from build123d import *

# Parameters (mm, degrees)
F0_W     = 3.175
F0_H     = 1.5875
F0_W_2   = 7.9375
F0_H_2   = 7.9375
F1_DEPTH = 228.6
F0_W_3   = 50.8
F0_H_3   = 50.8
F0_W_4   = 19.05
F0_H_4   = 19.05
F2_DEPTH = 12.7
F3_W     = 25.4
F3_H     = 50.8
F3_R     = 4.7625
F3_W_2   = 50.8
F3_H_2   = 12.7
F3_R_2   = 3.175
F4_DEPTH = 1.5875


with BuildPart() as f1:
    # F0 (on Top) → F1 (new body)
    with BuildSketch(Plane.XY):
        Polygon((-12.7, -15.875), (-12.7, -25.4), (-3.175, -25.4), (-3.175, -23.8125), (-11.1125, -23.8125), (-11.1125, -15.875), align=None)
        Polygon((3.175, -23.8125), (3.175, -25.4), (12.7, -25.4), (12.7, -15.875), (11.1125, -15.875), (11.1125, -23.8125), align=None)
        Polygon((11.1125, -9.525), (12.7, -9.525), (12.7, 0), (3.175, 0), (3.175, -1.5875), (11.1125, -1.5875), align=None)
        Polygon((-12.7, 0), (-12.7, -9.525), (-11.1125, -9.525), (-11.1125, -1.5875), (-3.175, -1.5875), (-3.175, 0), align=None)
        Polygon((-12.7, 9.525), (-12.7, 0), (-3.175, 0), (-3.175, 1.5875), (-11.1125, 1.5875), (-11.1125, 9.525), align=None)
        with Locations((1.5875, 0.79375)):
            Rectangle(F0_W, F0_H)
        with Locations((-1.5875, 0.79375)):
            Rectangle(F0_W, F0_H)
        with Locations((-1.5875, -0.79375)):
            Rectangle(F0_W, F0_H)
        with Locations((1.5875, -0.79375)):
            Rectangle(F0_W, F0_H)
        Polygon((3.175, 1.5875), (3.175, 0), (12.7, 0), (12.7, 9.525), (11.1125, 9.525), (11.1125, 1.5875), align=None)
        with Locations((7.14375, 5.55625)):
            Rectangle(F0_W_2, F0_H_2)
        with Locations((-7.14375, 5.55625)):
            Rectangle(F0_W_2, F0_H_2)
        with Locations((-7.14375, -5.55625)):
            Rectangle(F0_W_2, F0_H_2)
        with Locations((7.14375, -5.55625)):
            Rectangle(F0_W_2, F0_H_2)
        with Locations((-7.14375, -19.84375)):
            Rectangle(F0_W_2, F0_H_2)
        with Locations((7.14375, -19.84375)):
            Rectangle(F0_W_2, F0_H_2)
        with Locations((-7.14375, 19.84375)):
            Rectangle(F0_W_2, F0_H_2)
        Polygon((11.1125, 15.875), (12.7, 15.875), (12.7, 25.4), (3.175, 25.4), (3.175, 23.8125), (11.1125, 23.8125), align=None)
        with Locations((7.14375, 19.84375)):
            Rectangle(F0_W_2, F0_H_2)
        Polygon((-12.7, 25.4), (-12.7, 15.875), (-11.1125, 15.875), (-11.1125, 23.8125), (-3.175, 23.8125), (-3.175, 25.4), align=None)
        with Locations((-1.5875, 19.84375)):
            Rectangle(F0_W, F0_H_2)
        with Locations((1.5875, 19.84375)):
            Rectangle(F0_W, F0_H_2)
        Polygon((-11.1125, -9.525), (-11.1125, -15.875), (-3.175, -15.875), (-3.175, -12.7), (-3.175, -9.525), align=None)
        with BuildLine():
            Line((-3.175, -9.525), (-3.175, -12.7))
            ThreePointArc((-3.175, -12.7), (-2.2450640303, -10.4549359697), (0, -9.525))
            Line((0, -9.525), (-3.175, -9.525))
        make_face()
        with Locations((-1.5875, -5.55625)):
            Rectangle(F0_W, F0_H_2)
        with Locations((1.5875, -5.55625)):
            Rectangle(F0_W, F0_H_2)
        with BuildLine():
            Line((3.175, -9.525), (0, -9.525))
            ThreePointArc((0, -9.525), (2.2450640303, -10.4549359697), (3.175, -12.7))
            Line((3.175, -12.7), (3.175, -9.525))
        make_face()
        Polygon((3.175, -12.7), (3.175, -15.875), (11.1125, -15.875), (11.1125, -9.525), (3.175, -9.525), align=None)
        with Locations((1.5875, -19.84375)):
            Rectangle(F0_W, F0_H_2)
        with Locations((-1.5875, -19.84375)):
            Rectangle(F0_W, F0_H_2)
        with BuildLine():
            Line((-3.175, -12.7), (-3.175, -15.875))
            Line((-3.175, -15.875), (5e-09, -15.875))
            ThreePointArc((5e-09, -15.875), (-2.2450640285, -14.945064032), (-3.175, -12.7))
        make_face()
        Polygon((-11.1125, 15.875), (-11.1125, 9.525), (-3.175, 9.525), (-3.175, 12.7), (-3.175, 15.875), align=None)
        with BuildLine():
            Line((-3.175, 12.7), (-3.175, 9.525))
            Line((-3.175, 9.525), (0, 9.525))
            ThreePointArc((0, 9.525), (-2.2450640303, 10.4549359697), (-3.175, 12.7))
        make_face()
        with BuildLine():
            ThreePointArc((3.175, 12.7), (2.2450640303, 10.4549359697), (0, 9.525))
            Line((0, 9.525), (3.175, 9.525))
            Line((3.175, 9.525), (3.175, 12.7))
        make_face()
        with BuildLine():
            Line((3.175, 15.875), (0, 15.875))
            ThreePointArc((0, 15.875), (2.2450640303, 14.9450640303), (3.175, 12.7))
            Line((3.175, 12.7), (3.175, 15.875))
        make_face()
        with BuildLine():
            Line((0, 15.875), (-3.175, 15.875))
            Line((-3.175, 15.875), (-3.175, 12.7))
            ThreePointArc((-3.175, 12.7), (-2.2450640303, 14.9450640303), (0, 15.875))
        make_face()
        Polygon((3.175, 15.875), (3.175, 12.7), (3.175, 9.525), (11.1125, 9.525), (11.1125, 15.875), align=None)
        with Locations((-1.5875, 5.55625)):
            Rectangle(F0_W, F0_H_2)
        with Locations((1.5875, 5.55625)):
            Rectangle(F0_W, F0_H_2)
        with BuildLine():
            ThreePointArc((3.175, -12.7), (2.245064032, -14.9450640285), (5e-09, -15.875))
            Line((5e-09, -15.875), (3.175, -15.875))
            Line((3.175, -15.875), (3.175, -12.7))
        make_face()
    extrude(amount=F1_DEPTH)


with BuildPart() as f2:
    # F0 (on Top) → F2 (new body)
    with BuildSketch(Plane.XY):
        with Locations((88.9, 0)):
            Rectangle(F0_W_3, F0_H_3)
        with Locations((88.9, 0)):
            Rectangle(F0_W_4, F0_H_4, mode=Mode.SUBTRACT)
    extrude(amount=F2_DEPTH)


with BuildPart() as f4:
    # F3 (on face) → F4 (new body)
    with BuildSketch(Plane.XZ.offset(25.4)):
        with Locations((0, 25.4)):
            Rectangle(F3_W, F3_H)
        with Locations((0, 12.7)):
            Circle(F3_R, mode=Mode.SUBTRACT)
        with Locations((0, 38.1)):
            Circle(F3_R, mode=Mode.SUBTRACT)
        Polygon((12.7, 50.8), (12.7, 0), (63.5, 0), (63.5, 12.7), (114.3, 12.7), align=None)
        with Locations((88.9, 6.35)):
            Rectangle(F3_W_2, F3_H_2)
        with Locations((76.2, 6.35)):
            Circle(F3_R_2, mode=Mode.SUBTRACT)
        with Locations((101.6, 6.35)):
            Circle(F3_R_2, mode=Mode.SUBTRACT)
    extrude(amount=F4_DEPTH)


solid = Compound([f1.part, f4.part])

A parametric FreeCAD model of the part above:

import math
import FreeCAD as App
import Part
import Sketcher
from FreeCAD import Vector
Q = App.Units.Quantity

doc = App.newDocument("Part")
body = doc.addObject("PartDesign::Body", "Body")

# Sketch on XY plane
sketch1 = doc.addObject("Sketcher::SketchObject", "Sketch")
body.addObject(sketch1)
sketch1.AttachmentSupport = (doc.XY_Plane, [""])
sketch1.MapMode = "FlatFace"
sketch1.addGeometry([
    Part.LineSegment(Vector(-12.7, -15.9, 0), Vector(-12.7, -25.4, 0)),  # 0
    Part.LineSegment(Vector(-12.7, -25.4, 0), Vector(-3.2, -25.4, 0)),  # 1
    Part.LineSegment(Vector(-3.2, -25.4, 0), Vector(-3.2, -23.8, 0)),  # 2
    Part.LineSegment(Vector(-3.2, -23.8, 0), Vector(3.2, -23.8, 0)),  # 3
    Part.LineSegment(Vector(3.2, -23.8, 0), Vector(3.2, -25.4, 0)),  # 4
    Part.LineSegment(Vector(3.2, -25.4, 0), Vector(12.7, -25.4, 0)),  # 5
    Part.LineSegment(Vector(12.7, -25.4, 0), Vector(12.7, -15.9, 0)),  # 6
    Part.LineSegment(Vector(12.7, -15.9, 0), Vector(11.1, -15.9, 0)),  # 7
    Part.LineSegment(Vector(11.1, -15.9, 0), Vector(11.1, -9.5, 0)),  # 8
    Part.LineSegment(Vector(11.1, -9.5, 0), Vector(12.7, -9.5, 0)),  # 9
    Part.LineSegment(Vector(12.7, -9.5, 0), Vector(12.7, 9.5, 0)),  # 10
    Part.LineSegment(Vector(12.7, 9.5, 0), Vector(11.1, 9.5, 0)),  # 11
    Part.LineSegment(Vector(11.1, 9.5, 0), Vector(11.1, 15.9, 0)),  # 12
    Part.LineSegment(Vector(11.1, 15.9, 0), Vector(12.7, 15.9, 0)),  # 13
    Part.LineSegment(Vector(12.7, 15.9, 0), Vector(12.7, 25.4, 0)),  # 14
    Part.LineSegment(Vector(12.7, 25.4, 0), Vector(3.2, 25.4, 0)),  # 15
    Part.LineSegment(Vector(3.2, 25.4, 0), Vector(3.2, 23.8, 0)),  # 16
    Part.LineSegment(Vector(3.2, 23.8, 0), Vector(-3.2, 23.8, 0)),  # 17
    Part.LineSegment(Vector(-3.2, 23.8, 0), Vector(-3.2, 25.4, 0)),  # 18
    Part.LineSegment(Vector(-3.2, 25.4, 0), Vector(-12.7, 25.4, 0)),  # 19
    Part.LineSegment(Vector(-12.7, 25.4, 0), Vector(-12.7, 15.9, 0)),  # 20
    Part.LineSegment(Vector(-12.7, 15.9, 0), Vector(-11.1, 15.9, 0)),  # 21
    Part.LineSegment(Vector(-11.1, 15.9, 0), Vector(-11.1, 9.5, 0)),  # 22
    Part.LineSegment(Vector(-11.1, 9.5, 0), Vector(-12.7, 9.5, 0)),  # 23
    Part.LineSegment(Vector(-12.7, 9.5, 0), Vector(-12.7, -9.5, 0)),  # 24
    Part.LineSegment(Vector(-12.7, -9.5, 0), Vector(-11.1, -9.5, 0)),  # 25
    Part.LineSegment(Vector(-11.1, -9.5, 0), Vector(-11.1, -15.9, 0)),  # 26
    Part.LineSegment(Vector(-11.1, -15.9, 0), Vector(-12.7, -15.9, 0)),  # 27
    Part.ArcOfCircle(Part.Circle(Vector(0, -12.7, 0), Vector(0, 0, 1), 3.2), math.radians(90), math.radians(180)),  # 28
    Part.ArcOfCircle(Part.Circle(Vector(0, -12.7, 0), Vector(0, 0, 1), 3.2), math.radians(0), math.radians(90)),  # 29
    Part.ArcOfCircle(Part.Circle(Vector(0, -12.7, 0), Vector(0, 0, 1), 3.2), math.radians(-90), math.radians(0)),  # 30
    Part.ArcOfCircle(Part.Circle(Vector(0, -12.7, 0), Vector(0, 0, 1), 3.2), math.radians(180), math.radians(270)),  # 31
    Part.ArcOfCircle(Part.Circle(Vector(0, 12.7, 0), Vector(0, 0, 1), 3.2), math.radians(-90), math.radians(0)),  # 32
    Part.ArcOfCircle(Part.Circle(Vector(0, 12.7, 0), Vector(0, 0, 1), 3.2), math.radians(180), math.radians(270)),  # 33
    Part.ArcOfCircle(Part.Circle(Vector(0, 12.7, 0), Vector(0, 0, 1), 3.2), math.radians(90), math.radians(180)),  # 34
    Part.ArcOfCircle(Part.Circle(Vector(0, 12.7, 0), Vector(0, 0, 1), 3.2), math.radians(0), math.radians(90)),  # 35
], False)
sketch1.addConstraint([
    Sketcher.Constraint("Coincident", 0, 2, 1, 1),
    Sketcher.Constraint("Coincident", 1, 2, 2, 1),
    Sketcher.Constraint("Coincident", 2, 2, 3, 1),
    Sketcher.Constraint("Coincident", 3, 2, 4, 1),
    Sketcher.Constraint("Coincident", 4, 2, 5, 1),
    Sketcher.Constraint("Coincident", 5, 2, 6, 1),
    Sketcher.Constraint("Coincident", 6, 2, 7, 1),
    Sketcher.Constraint("Coincident", 7, 2, 8, 1),
    Sketcher.Constraint("Coincident", 8, 2, 9, 1),
    Sketcher.Constraint("Coincident", 9, 2, 10, 1),
    Sketcher.Constraint("Coincident", 10, 2, 11, 1),
    Sketcher.Constraint("Coincident", 11, 2, 12, 1),
    Sketcher.Constraint("Coincident", 12, 2, 13, 1),
    Sketcher.Constraint("Coincident", 13, 2, 14, 1),
    Sketcher.Constraint("Coincident", 14, 2, 15, 1),
    Sketcher.Constraint("Coincident", 15, 2, 16, 1),
    Sketcher.Constraint("Coincident", 16, 2, 17, 1),
    Sketcher.Constraint("Coincident", 17, 2, 18, 1),
    Sketcher.Constraint("Coincident", 18, 2, 19, 1),
    Sketcher.Constraint("Coincident", 19, 2, 20, 1),
    Sketcher.Constraint("Coincident", 20, 2, 21, 1),
    Sketcher.Constraint("Coincident", 21, 2, 22, 1),
    Sketcher.Constraint("Coincident", 22, 2, 23, 1),
    Sketcher.Constraint("Coincident", 23, 2, 24, 1),
    Sketcher.Constraint("Coincident", 24, 2, 25, 1),
    Sketcher.Constraint("Coincident", 25, 2, 26, 1),
    Sketcher.Constraint("Coincident", 26, 2, 27, 1),
    Sketcher.Constraint("Coincident", 27, 2, 0, 1),
    Sketcher.Constraint("Tangent", 28, 1, 29, 2),
    Sketcher.Constraint("Tangent", 29, 1, 30, 2),
    Sketcher.Constraint("Tangent", 30, 1, 31, 2),
    Sketcher.Constraint("Tangent", 31, 1, 28, 2),
    Sketcher.Constraint("Tangent", 32, 1, 33, 2),
    Sketcher.Constraint("Tangent", 33, 1, 34, 2),
    Sketcher.Constraint("Tangent", 34, 1, 35, 2),
    Sketcher.Constraint("Tangent", 35, 1, 32, 2),
    Sketcher.Constraint("Vertical", 0),
    Sketcher.Constraint("Horizontal", 1),
    Sketcher.Constraint("Vertical", 2),
    Sketcher.Constraint("Horizontal", 3),
    Sketcher.Constraint("Vertical", 4),
    Sketcher.Constraint("Horizontal", 5),
    Sketcher.Constraint("Vertical", 6),
    Sketcher.Constraint("Horizontal", 7),
    Sketcher.Constraint("Vertical", 8),
    Sketcher.Constraint("Horizontal", 9),
    Sketcher.Constraint("Vertical", 10),
    Sketcher.Constraint("Horizontal", 11),
    Sketcher.Constraint("Vertical", 12),
    Sketcher.Constraint("Horizontal", 13),
    Sketcher.Constraint("Vertical", 14),
    Sketcher.Constraint("Horizontal", 15),
    Sketcher.Constraint("Vertical", 16),
    Sketcher.Constraint("Horizontal", 17),
    Sketcher.Constraint("Vertical", 18),
    Sketcher.Constraint("Horizontal", 19),
    Sketcher.Constraint("Vertical", 20),
    Sketcher.Constraint("Horizontal", 21),
    Sketcher.Constraint("Vertical", 22),
    Sketcher.Constraint("Horizontal", 23),
    Sketcher.Constraint("Vertical", 24),
    Sketcher.Constraint("Horizontal", 25),
    Sketcher.Constraint("Vertical", 26),
    Sketcher.Constraint("Horizontal", 27),
    Sketcher.Constraint("Equal", 28, 29),
    Sketcher.Constraint("Equal", 31, 32),
    Sketcher.Constraint("Equal", 32, 33),
    Sketcher.Constraint("Symmetric", 28, 3, 32, 3, -1, 1),
    Sketcher.Constraint("Symmetric", 0, 2, 14, 2, -1, 1),
    Sketcher.Constraint("Symmetric", 2, 2, 16, 2, -1, 1),
    Sketcher.Constraint("Symmetric", 4, 2, 18, 2, -1, 1),
    Sketcher.Constraint("Symmetric", 6, 2, 20, 2, -1, 1),
    Sketcher.Constraint("Symmetric", 8, 2, 22, 2, -1, 1),
    Sketcher.Constraint("Symmetric", 10, 2, 24, 2, -1, 1),
    Sketcher.Constraint("Symmetric", 12, 2, 26, 2, -1, 1),
    Sketcher.Constraint("Symmetric", 1, 2, 4, 2, -2),
    Sketcher.Constraint("Symmetric", 13, 2, 20, 2, -2),
    Sketcher.Constraint("Symmetric", 11, 2, 22, 2, -2),
    Sketcher.Constraint("Symmetric", 29, 1, 31, 1, -2),
    Sketcher.Constraint("PointOnObject", 28, 1, -2),
    Sketcher.Constraint("PointOnObject", 30, 1, -2),
    Sketcher.Constraint("PointOnObject", 32, 1, -2),
    Sketcher.Constraint("PointOnObject", 34, 1, -2),
    Sketcher.Constraint("Horizontal", 25, 2, 28, 1),
    Sketcher.Constraint("Horizontal", 31, 3, 29, 1),
    Sketcher.Constraint("Horizontal", 27, 2, 30, 1),
    Sketcher.Constraint("Horizontal", 35, 3, 33, 1),
    Sketcher.Constraint("Horizontal", 33, 1, 35, 1),
    Sketcher.Constraint("Vertical", 6, 2, 9, 2),
    Sketcher.Constraint("Vertical", 16, 2, 29, 1),
    Sketcher.Constraint("Equal", 19, 0),
    Sketcher.Constraint("Equal", 27, 2),
    Sketcher.Constraint("DistanceY", 0, 2, -1, 1, Q("1 in")),
    Sketcher.Constraint("Radius", 28, Q("0.125 in")),
    Sketcher.Constraint("DistanceY", 28, 3, 32, 3, Q("1 in")),
    Sketcher.Constraint("DistanceX", 7, 2, 7, 1, Q("0.0625 in")),
])
pad1 = doc.addObject("PartDesign::Pad", "Pad")
body.addObject(pad1)
pad1.Profile = sketch1
pad1.Length = Q("9 in")
body2 = doc.addObject("PartDesign::Body", "Body001")

# Sketch on XY plane
sketch2 = doc.addObject("Sketcher::SketchObject", "Sketch001")
body2.addObject(sketch2)
sketch2.AttachmentSupport = (doc.getObject("XY_Plane001"), [""])
sketch2.MapMode = "FlatFace"
sketch2.addGeometry([
    Part.LineSegment(Vector(64, 25, 0), Vector(64, -25, 0)),  # 0
    Part.LineSegment(Vector(64, -25, 0), Vector(114, -25, 0)),  # 1
    Part.LineSegment(Vector(114, -25, 0), Vector(114, 25, 0)),  # 2
    Part.LineSegment(Vector(114, 25, 0), Vector(64, 25, 0)),  # 3
    Part.LineSegment(Vector(98, -10, 0), Vector(79, -10, 0)),  # 4
    Part.LineSegment(Vector(79, -10, 0), Vector(79, 10, 0)),  # 5
    Part.LineSegment(Vector(79, 10, 0), Vector(98, 10, 0)),  # 6
    Part.LineSegment(Vector(98, 10, 0), Vector(98, -10, 0)),  # 7
], False)
sketch2.addConstraint([
    Sketcher.Constraint("Coincident", 0, 2, 1, 1),
    Sketcher.Constraint("Coincident", 1, 2, 2, 1),
    Sketcher.Constraint("Coincident", 2, 2, 3, 1),
    Sketcher.Constraint("Coincident", 3, 2, 0, 1),
    Sketcher.Constraint("Coincident", 4, 2, 5, 1),
    Sketcher.Constraint("Coincident", 5, 2, 6, 1),
    Sketcher.Constraint("Coincident", 6, 2, 7, 1),
    Sketcher.Constraint("Coincident", 7, 2, 4, 1),
    Sketcher.Constraint("Vertical", 0),
    Sketcher.Constraint("Horizontal", 1),
    Sketcher.Constraint("Vertical", 2),
    Sketcher.Constraint("Horizontal", 3),
    Sketcher.Constraint("Horizontal", 4),
    Sketcher.Constraint("Vertical", 5),
    Sketcher.Constraint("Horizontal", 6),
    Sketcher.Constraint("Vertical", 7),
    Sketcher.Constraint("Equal", 3, 0),
    Sketcher.Constraint("Equal", 6, 5),
    Sketcher.Constraint("DistanceX", 1, 1, 1, 2, Q("2 in")),
    Sketcher.Constraint("DistanceY", 0, 2, -1, 1, Q("1 in")),
    Sketcher.Constraint("DistanceX", 4, 2, 4, 1, Q("0.75 in")),
    Sketcher.Constraint("DistanceX", -1, 1, 0, 2, Q("2.5 in")),
    Sketcher.Constraint("DistanceX", -1, 1, 4, 2, Q("3.125 in")),
    Sketcher.Constraint("DistanceY", 4, 2, -1, 1, Q("0.375 in")),
])
pad2 = doc.addObject("PartDesign::Pad", "Pad001")
body2.addObject(pad2)
pad2.Profile = sketch2
pad2.Length = Q("0.5 in")
body3 = doc.addObject("PartDesign::Body", "Body002")

# Sketch on XZ plane
sketch3 = doc.addObject("Sketcher::SketchObject", "Sketch002")
body3.addObject(sketch3)
sketch3.AttachmentSupport = (doc.getObject("XZ_Plane002"), [""])
sketch3.MapMode = "FlatFace"
sketch3.AttachmentOffset = App.Placement(Vector(0, 0, 1 * 25.4), App.Rotation())
sketch3.addGeometry([
    Part.LineSegment(Vector(-12.7, 50.8, 0), Vector(-12.7, 0, 0)),  # 0
    Part.LineSegment(Vector(-12.7, 0, 0), Vector(114.3, 0, 0)),  # 1
    Part.LineSegment(Vector(114.3, 0, 0), Vector(114.3, 12.7, 0)),  # 2
    Part.LineSegment(Vector(114.3, 12.7, 0), Vector(12.7, 50.8, 0)),  # 3
    Part.LineSegment(Vector(12.7, 50.8, 0), Vector(-12.7, 50.8, 0)),  # 4
    Part.Circle(Vector(0, 12.7, 0), Vector(0, 0, 1), 4.8),  # 5
    Part.Circle(Vector(76.2, 6.3, 0), Vector(0, 0, 1), 3.2),  # 6
    Part.Circle(Vector(101.6, 6.3, 0), Vector(0, 0, 1), 3.2),  # 7
    Part.Circle(Vector(0, 38.1, 0), Vector(0, 0, 1), 4.8),  # 8
], False)
sketch3.addConstraint([
    Sketcher.Constraint("Coincident", 0, 2, 1, 1),
    Sketcher.Constraint("Coincident", 1, 2, 2, 1),
    Sketcher.Constraint("Coincident", 2, 2, 3, 1),
    Sketcher.Constraint("Coincident", 3, 2, 4, 1),
    Sketcher.Constraint("Coincident", 4, 2, 0, 1),
    Sketcher.Constraint("Vertical", 0),
    Sketcher.Constraint("Horizontal", 1),
    Sketcher.Constraint("Vertical", 2),
    Sketcher.Constraint("Horizontal", 4),
    Sketcher.Constraint("Equal", 6, 7),
    Sketcher.Constraint("Equal", 5, 8),
    Sketcher.Constraint("PointOnObject", 5, 3, -2),
    Sketcher.Constraint("PointOnObject", 8, 3, -2),
    Sketcher.Constraint("PointOnObject", 0, 2, -1),
    Sketcher.Constraint("Horizontal", 6, 3, 7, 3),
    Sketcher.Constraint("Horizontal", 5, 3, 2, 2),
    Sketcher.Constraint("Diameter", 6, Q("0.25 in")),
    Sketcher.Constraint("DistanceX", 1, 1, 1, 2, Q("5 in")),
    Sketcher.Constraint("DistanceX", 4, 2, 4, 1, Q("1 in")),
    Sketcher.Constraint("DistanceY", 0, 2, 0, 1, Q("2 in")),
    Sketcher.Constraint("Diameter", 5, Q("0.375 in")),
    Sketcher.Constraint("DistanceY", 2, 1, 2, 2, Q("0.5 in")),
    Sketcher.Constraint("DistanceX", -1, 1, 6, 3, Q("3 in")),
    Sketcher.Constraint("DistanceX", -1, 1, 7, 3, Q("4 in")),
    Sketcher.Constraint("DistanceY", 5, 3, 8, 3, Q("1 in")),
    Sketcher.Constraint("DistanceX", 0, 2, -1, 1, Q("0.5 in")),
    Sketcher.Constraint("DistanceY", -1, 1, 6, 3, Q("0.25 in")),
])
pad3 = doc.addObject("PartDesign::Pad", "Pad002")
body3.addObject(pad3)
pad3.Profile = sketch3
pad3.Length = Q("0.0625 in")
body2.Visibility = False

doc.recompute()
